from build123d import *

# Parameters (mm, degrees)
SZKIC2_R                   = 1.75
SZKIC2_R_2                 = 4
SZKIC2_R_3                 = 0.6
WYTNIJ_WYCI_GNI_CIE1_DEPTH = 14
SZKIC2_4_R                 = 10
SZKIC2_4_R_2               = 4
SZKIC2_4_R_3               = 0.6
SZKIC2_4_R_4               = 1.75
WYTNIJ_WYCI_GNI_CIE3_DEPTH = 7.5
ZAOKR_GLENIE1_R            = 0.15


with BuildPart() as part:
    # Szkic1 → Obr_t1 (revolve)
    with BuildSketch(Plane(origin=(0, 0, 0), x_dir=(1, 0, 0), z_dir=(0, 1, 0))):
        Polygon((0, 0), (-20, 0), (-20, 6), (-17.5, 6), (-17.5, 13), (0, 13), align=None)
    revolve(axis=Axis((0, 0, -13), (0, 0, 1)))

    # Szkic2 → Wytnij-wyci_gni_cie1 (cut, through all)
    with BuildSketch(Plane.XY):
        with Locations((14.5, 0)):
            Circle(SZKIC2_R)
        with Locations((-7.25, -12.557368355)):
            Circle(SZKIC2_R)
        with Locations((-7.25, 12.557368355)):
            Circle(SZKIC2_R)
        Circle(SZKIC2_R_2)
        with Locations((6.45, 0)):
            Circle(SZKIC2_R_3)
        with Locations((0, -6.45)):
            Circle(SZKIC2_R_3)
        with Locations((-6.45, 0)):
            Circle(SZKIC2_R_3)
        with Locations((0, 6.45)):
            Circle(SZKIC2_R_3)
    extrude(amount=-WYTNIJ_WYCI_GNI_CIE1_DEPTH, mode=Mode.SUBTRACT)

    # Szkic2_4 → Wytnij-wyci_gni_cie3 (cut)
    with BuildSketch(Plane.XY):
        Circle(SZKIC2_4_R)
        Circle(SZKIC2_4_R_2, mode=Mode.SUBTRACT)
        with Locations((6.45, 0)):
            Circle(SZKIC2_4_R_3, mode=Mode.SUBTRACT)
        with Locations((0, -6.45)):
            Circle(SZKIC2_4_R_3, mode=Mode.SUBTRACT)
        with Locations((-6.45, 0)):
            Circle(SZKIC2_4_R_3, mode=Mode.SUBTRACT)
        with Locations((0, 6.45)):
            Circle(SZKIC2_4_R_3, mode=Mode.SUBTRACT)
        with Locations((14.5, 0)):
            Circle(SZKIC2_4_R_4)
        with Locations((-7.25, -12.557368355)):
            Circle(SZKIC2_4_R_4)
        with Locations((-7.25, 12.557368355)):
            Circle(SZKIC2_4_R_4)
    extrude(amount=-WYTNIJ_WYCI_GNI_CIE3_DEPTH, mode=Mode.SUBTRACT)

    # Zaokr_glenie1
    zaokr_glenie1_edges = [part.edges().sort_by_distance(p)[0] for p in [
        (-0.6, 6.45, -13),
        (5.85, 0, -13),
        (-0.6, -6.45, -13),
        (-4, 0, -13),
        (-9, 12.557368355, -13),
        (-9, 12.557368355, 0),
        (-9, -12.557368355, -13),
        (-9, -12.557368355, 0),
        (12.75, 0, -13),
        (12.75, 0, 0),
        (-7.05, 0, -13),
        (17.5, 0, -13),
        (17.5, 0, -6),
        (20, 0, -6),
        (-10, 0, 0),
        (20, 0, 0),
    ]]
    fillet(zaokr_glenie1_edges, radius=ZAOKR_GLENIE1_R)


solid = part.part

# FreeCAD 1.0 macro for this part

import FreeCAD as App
import Part
import Sketcher
Q = App.Units.Quantity


def edges_at(feature, points):
    """Names of the edges that pass closest to the given points."""
    edges = feature.Shape.Edges
    near = lambda p: min(range(len(edges)), key=lambda i: edges[i].distToShape(Part.Vertex(*p))[0])
    return sorted({f"Edge{near(p) + 1}" for p in points})

doc = App.newDocument("Part")
body = doc.addObject("PartDesign::Body", "Body")

# Sketch on XZ plane
sketch1 = body.newObject("Sketcher::SketchObject", "Sketch")
sketch1.AttachmentSupport = (doc.getObject("XZ_Plane"), [""])
sketch1.MapMode = "FlatFace"
sketch1.addGeometry(Part.LineSegment(App.Vector(-20, 0, 0), App.Vector(0, 0, 0)), False)
sketch1.addGeometry(Part.LineSegment(App.Vector(0, 0, 0), App.Vector(0, -13, 0)), False)
sketch1.addGeometry(Part.LineSegment(App.Vector(0, -13, 0), App.Vector(-17.5, -13, 0)), False)
sketch1.addGeometry(Part.LineSegment(App.Vector(-17.5, -13, 0), App.Vector(-17.5, -6, 0)), False)
sketch1.addGeometry(Part.LineSegment(App.Vector(-17.5, -6, 0), App.Vector(-20, -6, 0)), False)
sketch1.addGeometry(Part.LineSegment(App.Vector(-20, -6, 0), App.Vector(-20, 0, 0)), False)
sketch1.addConstraint(Sketcher.Constraint("Coincident", 0, 2, 1, 1))
sketch1.addConstraint(Sketcher.Constraint("Coincident", 1, 2, 2, 1))
sketch1.addConstraint(Sketcher.Constraint("Coincident", 2, 2, 3, 1))
sketch1.addConstraint(Sketcher.Constraint("Coincident", 3, 2, 4, 1))
sketch1.addConstraint(Sketcher.Constraint("Coincident", 4, 2, 5, 1))
sketch1.addConstraint(Sketcher.Constraint("Coincident", 5, 2, 0, 1))
sketch1.addConstraint(Sketcher.Constraint("Horizontal", 0))
sketch1.addConstraint(Sketcher.Constraint("Vertical", 1))
sketch1.addConstraint(Sketcher.Constraint("Horizontal", 2))
sketch1.addConstraint(Sketcher.Constraint("Vertical", 3))
sketch1.addConstraint(Sketcher.Constraint("Horizontal", 4))
sketch1.addConstraint(Sketcher.Constraint("Vertical", 5))
sketch1.addConstraint(Sketcher.Constraint("Coincident", 0, 2, -1, 1))
sketch1.addConstraint(Sketcher.Constraint("DistanceX", 0, 1, 0, 2, Q("20 mm")))
sketch1.addConstraint(Sketcher.Constraint("DistanceY", 1, 2, 1, 1, Q("13 mm")))
sketch1.addConstraint(Sketcher.Constraint("DistanceY", 3, 1, 3, 2, Q("7 mm")))
sketch1.addConstraint(Sketcher.Constraint("DistanceX", 2, 2, 2, 1, Q("17.5 mm")))
revolution = body.newObject("PartDesign::Revolution", "Revolution")
revolution.Profile = sketch1
revolution.ReferenceAxis = (sketch1, ["V_Axis"])
revolution.Angle = 360

# Sketch on XY plane
sketch2 = body.newObject("Sketcher::SketchObject", "Sketch001")
sketch2.AttachmentSupport = (doc.getObject("XY_Plane"), [""])
sketch2.MapMode = "FlatFace"
sketch2.addGeometry(Part.Circle(App.Vector(14.5, 0, 0), App.Vector(0, 0, 1), 1.8), False)
sketch2.addGeometry(Part.Circle(App.Vector(-7.2, -12.6, 0), App.Vector(0, 0, 1), 1.8), False)
sketch2.addGeometry(Part.Circle(App.Vector(-7.2, 12.6, 0), App.Vector(0, 0, 1), 1.8), False)
sketch2.addGeometry(Part.Circle(App.Vector(0, 0, 0), App.Vector(0, 0, 1), 4), False)
sketch2.addGeometry(Part.Circle(App.Vector(6.5, 0, 0), App.Vector(0, 0, 1), 0.6), False)
sketch2.addGeometry(Part.Circle(App.Vector(0, -6.5, 0), App.Vector(0, 0, 1), 0.6), False)
sketch2.addGeometry(Part.Circle(App.Vector(-6.5, 0, 0), App.Vector(0, 0, 1), 0.6), False)
sketch2.addGeometry(Part.Circle(App.Vector(0, 6.5, 0), App.Vector(0, 0, 1), 0.6), False)
sketch2.addConstraint(Sketcher.Constraint("Coincident", 3, 3, -1, 1))
sketch2.addConstraint(Sketcher.Constraint("Equal", 0, 1))
sketch2.addConstraint(Sketcher.Constraint("Equal", 1, 2))
sketch2.addConstraint(Sketcher.Constraint("Equal", 4, 5))
sketch2.addConstraint(Sketcher.Constraint("Equal", 5, 6))
sketch2.addConstraint(Sketcher.Constraint("Equal", 6, 7))
sketch2.addConstraint(Sketcher.Constraint("Symmetric", 4, 3, 6, 3, -1, 1))
sketch2.addConstraint(Sketcher.Constraint("Symmetric", 5, 3, 7, 3, -1, 1))
sketch2.addConstraint(Sketcher.Constraint("Symmetric", 1, 3, 2, 3, -1))
sketch2.addConstraint(Sketcher.Constraint("PointOnObject", 0, 3, -1))
sketch2.addConstraint(Sketcher.Constraint("PointOnObject", 4, 3, -1))
sketch2.addConstraint(Sketcher.Constraint("PointOnObject", 5, 3, -2))
sketch2.addConstraint(Sketcher.Constraint("Diameter", 3, Q("8 mm")))
sketch2.addConstraint(Sketcher.Constraint("Diameter", 0, Q("3.5 mm")))
sketch2.addConstraint(Sketcher.Constraint("Diameter", 4, Q("1.2 mm")))
sketch2.addConstraint(Sketcher.Constraint("DistanceX", -1, 1, 0, 3, Q("14.5 mm")))
sketch2.addConstraint(Sketcher.Constraint("DistanceX", 1, 3, 4, 3, Q("13.7 mm")))
sketch2.addConstraint(Sketcher.Constraint("DistanceX", 1, 3, 6, 3, Q("0.8 mm")))
sketch2.addConstraint(Sketcher.Constraint("DistanceY", 5, 3, 7, 3, Q("12.9 mm")))
sketch2.addConstraint(Sketcher.Constraint("DistanceY", 1, 3, -1, 1, Q("12.557368 mm")))
pocket1 = body.newObject("PartDesign::Pocket", "Pocket")
pocket1.Profile = sketch2
pocket1.Type = "ThroughAll"

# Sketch on XY plane
sketch3 = body.newObject("Sketcher::SketchObject", "Sketch002")
sketch3.AttachmentSupport = (doc.getObject("XY_Plane"), [""])
sketch3.MapMode = "FlatFace"
sketch3.addGeometry(Part.Circle(App.Vector(0, 0, 0), App.Vector(0, 0, 1), 10), False)
sketch3.addGeometry(Part.Circle(App.Vector(0, -6.5, 0), App.Vector(0, 0, 1), 0.6), False)
sketch3.addGeometry(Part.Circle(App.Vector(-6.5, 0, 0), App.Vector(0, 0, 1), 0.6), False)
sketch3.addGeometry(Part.Circle(App.Vector(0, 0, 0), App.Vector(0, 0, 1), 4), False)
sketch3.addGeometry(Part.Circle(App.Vector(6.5, 0, 0), App.Vector(0, 0, 1), 0.6), False)
sketch3.addGeometry(Part.Circle(App.Vector(0, 6.5, 0), App.Vector(0, 0, 1), 0.6), False)
sketch3.addGeometry(Part.Circle(App.Vector(14.5, 0, 0), App.Vector(0, 0, 1), 1.8), False)
sketch3.addGeometry(Part.Circle(App.Vector(-7.2, -12.6, 0), App.Vector(0, 0, 1), 1.8), False)
sketch3.addGeometry(Part.Circle(App.Vector(-7.2, 12.6, 0), App.Vector(0, 0, 1), 1.8), False)
sketch3.addConstraint(Sketcher.Constraint("Coincident", 0, 3, -1, 1))
sketch3.addConstraint(Sketcher.Constraint("Coincident", 3, 3, -1, 1))
sketch3.addConstraint(Sketcher.Constraint("Equal", 1, 2))
sketch3.addConstraint(Sketcher.Constraint("Equal", 2, 4))
sketch3.addConstraint(Sketcher.Constraint("Equal", 4, 5))
sketch3.addConstraint(Sketcher.Constraint("Equal", 6, 7))
sketch3.addConstraint(Sketcher.Constraint("Equal", 7, 8))
sketch3.addConstraint(Sketcher.Constraint("Symmetric", 2, 3, 4, 3, -1, 1))
sketch3.addConstraint(Sketcher.Constraint("Symmetric", 1, 3, 5, 3, -1, 1))
sketch3.addConstraint(Sketcher.Constraint("Symmetric", 7, 3, 8, 3, -1))
sketch3.addConstraint(Sketcher.Constraint("PointOnObject", 1, 3, -2))
sketch3.addConstraint(Sketcher.Constraint("PointOnObject", 2, 3, -1))
sketch3.addConstraint(Sketcher.Constraint("PointOnObject", 6, 3, -1))
sketch3.addConstraint(Sketcher.Constraint("Diameter", 0, Q("20 mm")))
sketch3.addConstraint(Sketcher.Constraint("Diameter", 3, Q("8 mm")))
sketch3.addConstraint(Sketcher.Constraint("Diameter", 1, Q("1.2 mm")))
sketch3.addConstraint(Sketcher.Constraint("Diameter", 6, Q("3.5 mm")))
sketch3.addConstraint(Sketcher.Constraint("DistanceX", -1, 1, 6, 3, Q("14.5 mm")))
sketch3.addConstraint(Sketcher.Constraint("DistanceX", 2, 3, 4, 3, Q("12.9 mm")))
sketch3.addConstraint(Sketcher.Constraint("DistanceY", 1, 3, 5, 3, Q("12.9 mm")))
sketch3.addConstraint(Sketcher.Constraint("DistanceX", 7, 3, 2, 3, Q("0.8 mm")))
sketch3.addConstraint(Sketcher.Constraint("DistanceY", 7, 3, -1, 1, Q("12.557368 mm")))
pocket2 = body.newObject("PartDesign::Pocket", "Pocket001")
pocket2.Profile = sketch3
pocket2.Length = 7.5
doc.recompute()

fillet = body.newObject("PartDesign::Fillet", "Fillet")
fillet.Base = (pocket2, edges_at(pocket2, [
    (-0.6, 6.45, -13),
    (5.85, 0, -13),
    (-0.6, -6.45, -13),
    (-4, 0, -13),
    (-9, 12.557, -13),
    (-9, 12.557, 0),
    (-9, -12.557, -13),
    (-9, -12.557, 0),
    (12.75, 0, -13),
    (12.75, 0, 0),
    (-7.05, 0, -13),
    (17.5, 0, -13),
    (17.5, 0, -6),
    (20, 0, -6),
    (-10, 0, 0),
    (20, 0, 0),
]))
fillet.Radius = 0.15

doc.recompute()
